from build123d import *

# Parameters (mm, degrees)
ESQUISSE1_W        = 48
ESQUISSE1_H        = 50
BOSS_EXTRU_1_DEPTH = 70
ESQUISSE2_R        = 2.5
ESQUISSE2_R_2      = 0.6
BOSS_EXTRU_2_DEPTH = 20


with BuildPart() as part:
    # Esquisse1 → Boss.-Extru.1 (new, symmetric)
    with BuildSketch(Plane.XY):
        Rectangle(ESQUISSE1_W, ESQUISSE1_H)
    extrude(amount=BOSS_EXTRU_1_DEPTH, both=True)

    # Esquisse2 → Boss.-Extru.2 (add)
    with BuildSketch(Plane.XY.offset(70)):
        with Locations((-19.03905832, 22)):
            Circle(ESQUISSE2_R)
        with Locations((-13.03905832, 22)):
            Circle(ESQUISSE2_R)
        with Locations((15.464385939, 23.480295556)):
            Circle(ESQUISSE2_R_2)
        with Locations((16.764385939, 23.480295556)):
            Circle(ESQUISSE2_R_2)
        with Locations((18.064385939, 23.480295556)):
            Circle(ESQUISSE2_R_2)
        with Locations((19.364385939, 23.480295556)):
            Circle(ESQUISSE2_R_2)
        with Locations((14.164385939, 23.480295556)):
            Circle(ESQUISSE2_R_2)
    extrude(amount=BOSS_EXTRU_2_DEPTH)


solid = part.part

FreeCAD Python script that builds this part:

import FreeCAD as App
import Part
import Sketcher

V = App.Vector
Q = App.Units.Quantity

doc = App.newDocument("Part")
body = doc.addObject("PartDesign::Body", "Body")

sketch1 = body.newObject("Sketcher::SketchObject", "Sketch")
sketch1.AttachmentSupport = (doc.getObject("XY_Plane"), [""])
sketch1.MapMode = "FlatFace"
sketch1.addGeometry(Part.LineSegment(V(-24, 25, 0), V(-24, -25, 0)), False)
sketch1.addGeometry(Part.LineSegment(V(-24, -25, 0), V(24, -25, 0)), False)
sketch1.addGeometry(Part.LineSegment(V(24, -25, 0), V(24, 25, 0)), False)
sketch1.addGeometry(Part.LineSegment(V(24, 25, 0), V(-24, 25, 0)), False)
sketch1.addConstraint(Sketcher.Constraint("Coincident", 0, 2, 1, 1))
sketch1.addConstraint(Sketcher.Constraint("Coincident", 1, 2, 2, 1))
sketch1.addConstraint(Sketcher.Constraint("Coincident", 2, 2, 3, 1))
sketch1.addConstraint(Sketcher.Constraint("Coincident", 3, 2, 0, 1))
sketch1.addConstraint(Sketcher.Constraint("Vertical", 0))
sketch1.addConstraint(Sketcher.Constraint("Horizontal", 1))
sketch1.addConstraint(Sketcher.Constraint("Vertical", 2))
sketch1.addConstraint(Sketcher.Constraint("Horizontal", 3))
sketch1.addConstraint(Sketcher.Constraint("Symmetric", 0, 2, 2, 2, -1, 1))
sketch1.addConstraint(Sketcher.Constraint("DistanceX", 1, 1, 1, 2, Q("48 mm")))
sketch1.addConstraint(Sketcher.Constraint("DistanceY", 0, 2, 0, 1, Q("50 mm")))
pad1 = body.newObject("PartDesign::Pad", "Pad")
pad1.Profile = sketch1
pad1.Length = 140
pad1.Midplane = True

sketch2 = body.newObject("Sketcher::SketchObject", "Sketch001")
sketch2.AttachmentSupport = (doc.getObject("XY_Plane"), [""])
sketch2.MapMode = "FlatFace"
sketch2.AttachmentOffset = App.Placement(V(0, 0, 70), App.Rotation())
sketch2.addGeometry(Part.Circle(V(-19, 22, 0), V(0, 0, 1), 2.5), False)
sketch2.addGeometry(Part.Circle(V(-13, 22, 0), V(0, 0, 1), 2.5), False)
sketch2.addGeometry(Part.Circle(V(15.5, 23.5, 0), V(0, 0, 1), 0.6), False)
sketch2.addGeometry(Part.Circle(V(16.8, 23.5, 0), V(0, 0, 1), 0.6), False)
sketch2.addGeometry(Part.Circle(V(18.1, 23.5, 0), V(0, 0, 1), 0.6), False)
sketch2.addGeometry(Part.Circle(V(19.4, 23.5, 0), V(0, 0, 1), 0.6), False)
sketch2.addGeometry(Part.Circle(V(14.2, 23.5, 0), V(0, 0, 1), 0.6), False)
sketch2.addConstraint(Sketcher.Constraint("Equal", 0, 1))
sketch2.addConstraint(Sketcher.Constraint("Equal", 2, 3))
sketch2.addConstraint(Sketcher.Constraint("Equal", 3, 4))
sketch2.addConstraint(Sketcher.Constraint("Equal", 4, 5))
sketch2.addConstraint(Sketcher.Constraint("Equal", 5, 6))
sketch2.addConstraint(Sketcher.Constraint("Horizontal", 0, 3, 1, 3))
sketch2.addConstraint(Sketcher.Constraint("Horizontal", 2, 3, 3, 3))
sketch2.addConstraint(Sketcher.Constraint("Horizontal", 3, 3, 4, 3))
sketch2.addConstraint(Sketcher.Constraint("Horizontal", 4, 3, 5, 3))
sketch2.addConstraint(Sketcher.Constraint("Horizontal", 5, 3, 6, 3))
sketch2.addConstraint(Sketcher.Constraint("Diameter", 0, Q("5 mm")))
sketch2.addConstraint(Sketcher.Constraint("Diameter", 2, Q("1.2 mm")))
sketch2.addConstraint(Sketcher.Constraint("DistanceY", -1, 1, 0, 3, Q("22 mm")))
sketch2.addConstraint(Sketcher.Constraint("DistanceX", 0, 3, 1, 3, Q("6 mm")))
sketch2.addConstraint(Sketcher.Constraint("DistanceX", 2, 3, 3, 3, Q("1.3 mm")))
sketch2.addConstraint(Sketcher.Constraint("DistanceX", 3, 3, 4, 3, Q("1.3 mm")))
sketch2.addConstraint(Sketcher.Constraint("DistanceX", 4, 3, 5, 3, Q("1.3 mm")))
sketch2.addConstraint(Sketcher.Constraint("DistanceX", 6, 3, 2, 3, Q("1.3 mm")))
sketch2.addConstraint(Sketcher.Constraint("DistanceX", 0, 3, -1, 1, Q("19.039058 mm")))
sketch2.addConstraint(Sketcher.Constraint("DistanceX", -1, 1, 2, 3, Q("15.464386 mm")))
sketch2.addConstraint(Sketcher.Constraint("DistanceY", -1, 1, 2, 3, Q("23.480296 mm")))
pad2 = body.newObject("PartDesign::Pad", "Pad001")
pad2.Profile = sketch2
pad2.Length = 20

doc.recompute()
